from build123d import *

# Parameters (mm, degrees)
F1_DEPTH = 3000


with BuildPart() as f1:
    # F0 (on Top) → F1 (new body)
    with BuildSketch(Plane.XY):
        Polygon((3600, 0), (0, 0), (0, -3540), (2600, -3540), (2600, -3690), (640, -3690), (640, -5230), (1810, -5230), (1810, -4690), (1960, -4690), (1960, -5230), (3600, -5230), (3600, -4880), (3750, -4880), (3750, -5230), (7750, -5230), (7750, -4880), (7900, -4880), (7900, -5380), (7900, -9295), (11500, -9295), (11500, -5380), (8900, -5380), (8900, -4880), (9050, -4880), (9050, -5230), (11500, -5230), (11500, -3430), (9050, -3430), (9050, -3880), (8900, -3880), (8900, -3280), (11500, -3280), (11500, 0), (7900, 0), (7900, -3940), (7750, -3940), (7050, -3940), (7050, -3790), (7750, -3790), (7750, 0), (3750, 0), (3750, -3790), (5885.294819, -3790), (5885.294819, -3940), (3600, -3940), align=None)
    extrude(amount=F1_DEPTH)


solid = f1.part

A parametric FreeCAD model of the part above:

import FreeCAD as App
import Part
import Sketcher
from FreeCAD import Vector
Q = App.Units.Quantity


def add_polygon(sketch, points):
    """Adds a closed chain of lines whose ends are joined by coincident constraints."""
    first, n = sketch.GeometryCount, len(points)
    for a, b in zip(points, points[1:] + points[:1]):
        sketch.addGeometry(Part.LineSegment(App.Vector(*a, 0), App.Vector(*b, 0)), False)
    for i in range(n):
        sketch.addConstraint(Sketcher.Constraint("Coincident", first + i, 2, first + (i + 1) % n, 1))

doc = App.newDocument("Part")
body = doc.addObject("PartDesign::Body", "Body")

sketch1 = doc.addObject("Sketcher::SketchObject", "Sketch")
body.addObject(sketch1)
sketch1.AttachmentSupport = (doc.XY_Plane, [""])
sketch1.MapMode = "FlatFace"
add_polygon(sketch1, [(3600, 0), (0, 0), (0, -3540), (2600, -3540), (2600, -3690), (640, -3690), (640, -5230), (1810, -5230), (1810, -4690), (1960, -4690), (1960, -5230), (3600, -5230), (3600, -4880), (3750, -4880), (3750, -5230), (7750, -5230), (7750, -4880), (7900, -4880), (7900, -9295), (11500, -9295), (11500, -5380), (8900, -5380), (8900, -4880), (9050, -4880), (9050, -5230), (11500, -5230), (11500, -3430), (9050, -3430), (9050, -3880), (8900, -3880), (8900, -3280), (11500, -3280), (11500, 0), (7900, 0), (7900, -3940), (7050, -3940), (7050, -3790), (7750, -3790), (7750, 0), (3750, 0), (3750, -3790), (5885.294819, -3790), (5885.294819, -3940), (3600, -3940)])
sketch1.addConstraint(Sketcher.Constraint("Horizontal", 0))
sketch1.addConstraint(Sketcher.Constraint("Vertical", 1))
sketch1.addConstraint(Sketcher.Constraint("Horizontal", 2))
sketch1.addConstraint(Sketcher.Constraint("Vertical", 3))
sketch1.addConstraint(Sketcher.Constraint("Horizontal", 4))
sketch1.addConstraint(Sketcher.Constraint("Vertical", 5))
sketch1.addConstraint(Sketcher.Constraint("Horizontal", 6))
sketch1.addConstraint(Sketcher.Constraint("Vertical", 7))
sketch1.addConstraint(Sketcher.Constraint("Horizontal", 8))
sketch1.addConstraint(Sketcher.Constraint("Vertical", 9))
sketch1.addConstraint(Sketcher.Constraint("Horizontal", 10))
sketch1.addConstraint(Sketcher.Constraint("Vertical", 11))
sketch1.addConstraint(Sketcher.Constraint("Horizontal", 12))
sketch1.addConstraint(Sketcher.Constraint("Vertical", 13))
sketch1.addConstraint(Sketcher.Constraint("Horizontal", 14))
sketch1.addConstraint(Sketcher.Constraint("Vertical", 15))
sketch1.addConstraint(Sketcher.Constraint("Horizontal", 16))
sketch1.addConstraint(Sketcher.Constraint("Vertical", 17))
sketch1.addConstraint(Sketcher.Constraint("Horizontal", 18))
sketch1.addConstraint(Sketcher.Constraint("Vertical", 19))
sketch1.addConstraint(Sketcher.Constraint("Horizontal", 20))
sketch1.addConstraint(Sketcher.Constraint("Vertical", 21))
sketch1.addConstraint(Sketcher.Constraint("Horizontal", 22))
sketch1.addConstraint(Sketcher.Constraint("Vertical", 23))
sketch1.addConstraint(Sketcher.Constraint("Horizontal", 24))
sketch1.addConstraint(Sketcher.Constraint("Vertical", 25))
sketch1.addConstraint(Sketcher.Constraint("Horizontal", 26))
sketch1.addConstraint(Sketcher.Constraint("Vertical", 27))
sketch1.addConstraint(Sketcher.Constraint("Horizontal", 28))
sketch1.addConstraint(Sketcher.Constraint("Vertical", 29))
sketch1.addConstraint(Sketcher.Constraint("Horizontal", 30))
sketch1.addConstraint(Sketcher.Constraint("Vertical", 31))
sketch1.addConstraint(Sketcher.Constraint("Horizontal", 32))
sketch1.addConstraint(Sketcher.Constraint("Vertical", 33))
sketch1.addConstraint(Sketcher.Constraint("Horizontal", 34))
sketch1.addConstraint(Sketcher.Constraint("Vertical", 35))
sketch1.addConstraint(Sketcher.Constraint("Horizontal", 36))
sketch1.addConstraint(Sketcher.Constraint("Vertical", 37))
sketch1.addConstraint(Sketcher.Constraint("Horizontal", 38))
sketch1.addConstraint(Sketcher.Constraint("Vertical", 39))
sketch1.addConstraint(Sketcher.Constraint("Horizontal", 40))
sketch1.addConstraint(Sketcher.Constraint("Vertical", 41))
sketch1.addConstraint(Sketcher.Constraint("Horizontal", 42))
sketch1.addConstraint(Sketcher.Constraint("Vertical", 43))
sketch1.addConstraint(Sketcher.Constraint("Coincident", 0, 2, -1, 1))
sketch1.addConstraint(Sketcher.Constraint("PointOnObject", 31, 2, -1))
sketch1.addConstraint(Sketcher.Constraint("PointOnObject", 37, 2, -1))
sketch1.addConstraint(Sketcher.Constraint("Horizontal", 6, 2, 9, 2))
sketch1.addConstraint(Sketcher.Constraint("Horizontal", 10, 2, 13, 2))
sketch1.addConstraint(Sketcher.Constraint("Horizontal", 12, 2, 15, 2))
sketch1.addConstraint(Sketcher.Constraint("Horizontal", 16, 2, 21, 2))
sketch1.addConstraint(Sketcher.Constraint("Horizontal", 14, 2, 23, 2))
sketch1.addConstraint(Sketcher.Constraint("Horizontal", 36, 2, 39, 2))
sketch1.addConstraint(Sketcher.Constraint("Horizontal", 34, 2, 41, 2))
sketch1.addConstraint(Sketcher.Constraint("Vertical", 19, 2, 24, 2))
sketch1.addConstraint(Sketcher.Constraint("Vertical", 23, 2, 26, 2))
sketch1.addConstraint(Sketcher.Constraint("Vertical", 21, 2, 28, 2))
sketch1.addConstraint(Sketcher.Constraint("Vertical", 25, 2, 30, 2))
sketch1.addConstraint(Sketcher.Constraint("Vertical", 17, 2, 32, 2))
sketch1.addConstraint(Sketcher.Constraint("Vertical", 15, 2, 36, 2))
sketch1.addConstraint(Sketcher.Constraint("Vertical", 13, 2, 38, 2))
sketch1.addConstraint(Sketcher.Constraint("Vertical", 11, 2, 42, 2))
sketch1.addConstraint(Sketcher.Constraint("Equal", 8, 12))
sketch1.addConstraint(Sketcher.Constraint("Equal", 12, 16))
sketch1.addConstraint(Sketcher.Constraint("Equal", 0, 18))
sketch1.addConstraint(Sketcher.Constraint("Equal", 2, 20))
sketch1.addConstraint(Sketcher.Constraint("Equal", 16, 22))
sketch1.addConstraint(Sketcher.Constraint("Equal", 28, 3))
sketch1.addConstraint(Sketcher.Constraint("Equal", 3, 35))
sketch1.addConstraint(Sketcher.Constraint("DistanceX", 0, 2, 0, 1, Q("3600 mm")))
sketch1.addConstraint(Sketcher.Constraint("DistanceX", 2, 1, 2, 2, Q("2600 mm")))
sketch1.addConstraint(Sketcher.Constraint("DistanceX", 4, 2, 4, 1, Q("1960 mm")))
sketch1.addConstraint(Sketcher.Constraint("DistanceX", 6, 1, 6, 2, Q("1170 mm")))
sketch1.addConstraint(Sketcher.Constraint("DistanceX", 8, 1, 8, 2, Q("150 mm")))
sketch1.addConstraint(Sketcher.Constraint("DistanceX", 14, 1, 14, 2, Q("4000 mm")))
sketch1.addConstraint(Sketcher.Constraint("DistanceX", 34, 2, 34, 1, Q("850 mm")))
sketch1.addConstraint(Sketcher.Constraint("DistanceY", 1, 2, 1, 1, Q("3540 mm")))
sketch1.addConstraint(Sketcher.Constraint("DistanceY", 5, 2, 5, 1, Q("1540 mm")))
sketch1.addConstraint(Sketcher.Constraint("DistanceY", 7, 1, 7, 2, Q("540 mm")))
sketch1.addConstraint(Sketcher.Constraint("DistanceY", 11, 1, 11, 2, Q("350 mm")))
sketch1.addConstraint(Sketcher.Constraint("DistanceY", 17, 2, 17, 1, Q("4415 mm")))
sketch1.addConstraint(Sketcher.Constraint("DistanceY", 19, 1, 19, 2, Q("3915 mm")))
sketch1.addConstraint(Sketcher.Constraint("DistanceY", 25, 1, 25, 2, Q("1800 mm")))
sketch1.addConstraint(Sketcher.Constraint("DistanceY", 27, 2, 27, 1, Q("450 mm")))
sketch1.addConstraint(Sketcher.Constraint("DistanceY", 29, 1, 29, 2, Q("600 mm")))
sketch1.addConstraint(Sketcher.Constraint("DistanceY", 33, 2, 33, 1, Q("3940 mm")))
sketch1.addConstraint(Sketcher.Constraint("DistanceX", 40, 1, 40, 2, Q("2135.294819 mm")))
pad1 = doc.addObject("PartDesign::Pad", "Pad")
body.addObject(pad1)
pad1.Profile = sketch1
pad1.Length = 3000

doc.recompute()
